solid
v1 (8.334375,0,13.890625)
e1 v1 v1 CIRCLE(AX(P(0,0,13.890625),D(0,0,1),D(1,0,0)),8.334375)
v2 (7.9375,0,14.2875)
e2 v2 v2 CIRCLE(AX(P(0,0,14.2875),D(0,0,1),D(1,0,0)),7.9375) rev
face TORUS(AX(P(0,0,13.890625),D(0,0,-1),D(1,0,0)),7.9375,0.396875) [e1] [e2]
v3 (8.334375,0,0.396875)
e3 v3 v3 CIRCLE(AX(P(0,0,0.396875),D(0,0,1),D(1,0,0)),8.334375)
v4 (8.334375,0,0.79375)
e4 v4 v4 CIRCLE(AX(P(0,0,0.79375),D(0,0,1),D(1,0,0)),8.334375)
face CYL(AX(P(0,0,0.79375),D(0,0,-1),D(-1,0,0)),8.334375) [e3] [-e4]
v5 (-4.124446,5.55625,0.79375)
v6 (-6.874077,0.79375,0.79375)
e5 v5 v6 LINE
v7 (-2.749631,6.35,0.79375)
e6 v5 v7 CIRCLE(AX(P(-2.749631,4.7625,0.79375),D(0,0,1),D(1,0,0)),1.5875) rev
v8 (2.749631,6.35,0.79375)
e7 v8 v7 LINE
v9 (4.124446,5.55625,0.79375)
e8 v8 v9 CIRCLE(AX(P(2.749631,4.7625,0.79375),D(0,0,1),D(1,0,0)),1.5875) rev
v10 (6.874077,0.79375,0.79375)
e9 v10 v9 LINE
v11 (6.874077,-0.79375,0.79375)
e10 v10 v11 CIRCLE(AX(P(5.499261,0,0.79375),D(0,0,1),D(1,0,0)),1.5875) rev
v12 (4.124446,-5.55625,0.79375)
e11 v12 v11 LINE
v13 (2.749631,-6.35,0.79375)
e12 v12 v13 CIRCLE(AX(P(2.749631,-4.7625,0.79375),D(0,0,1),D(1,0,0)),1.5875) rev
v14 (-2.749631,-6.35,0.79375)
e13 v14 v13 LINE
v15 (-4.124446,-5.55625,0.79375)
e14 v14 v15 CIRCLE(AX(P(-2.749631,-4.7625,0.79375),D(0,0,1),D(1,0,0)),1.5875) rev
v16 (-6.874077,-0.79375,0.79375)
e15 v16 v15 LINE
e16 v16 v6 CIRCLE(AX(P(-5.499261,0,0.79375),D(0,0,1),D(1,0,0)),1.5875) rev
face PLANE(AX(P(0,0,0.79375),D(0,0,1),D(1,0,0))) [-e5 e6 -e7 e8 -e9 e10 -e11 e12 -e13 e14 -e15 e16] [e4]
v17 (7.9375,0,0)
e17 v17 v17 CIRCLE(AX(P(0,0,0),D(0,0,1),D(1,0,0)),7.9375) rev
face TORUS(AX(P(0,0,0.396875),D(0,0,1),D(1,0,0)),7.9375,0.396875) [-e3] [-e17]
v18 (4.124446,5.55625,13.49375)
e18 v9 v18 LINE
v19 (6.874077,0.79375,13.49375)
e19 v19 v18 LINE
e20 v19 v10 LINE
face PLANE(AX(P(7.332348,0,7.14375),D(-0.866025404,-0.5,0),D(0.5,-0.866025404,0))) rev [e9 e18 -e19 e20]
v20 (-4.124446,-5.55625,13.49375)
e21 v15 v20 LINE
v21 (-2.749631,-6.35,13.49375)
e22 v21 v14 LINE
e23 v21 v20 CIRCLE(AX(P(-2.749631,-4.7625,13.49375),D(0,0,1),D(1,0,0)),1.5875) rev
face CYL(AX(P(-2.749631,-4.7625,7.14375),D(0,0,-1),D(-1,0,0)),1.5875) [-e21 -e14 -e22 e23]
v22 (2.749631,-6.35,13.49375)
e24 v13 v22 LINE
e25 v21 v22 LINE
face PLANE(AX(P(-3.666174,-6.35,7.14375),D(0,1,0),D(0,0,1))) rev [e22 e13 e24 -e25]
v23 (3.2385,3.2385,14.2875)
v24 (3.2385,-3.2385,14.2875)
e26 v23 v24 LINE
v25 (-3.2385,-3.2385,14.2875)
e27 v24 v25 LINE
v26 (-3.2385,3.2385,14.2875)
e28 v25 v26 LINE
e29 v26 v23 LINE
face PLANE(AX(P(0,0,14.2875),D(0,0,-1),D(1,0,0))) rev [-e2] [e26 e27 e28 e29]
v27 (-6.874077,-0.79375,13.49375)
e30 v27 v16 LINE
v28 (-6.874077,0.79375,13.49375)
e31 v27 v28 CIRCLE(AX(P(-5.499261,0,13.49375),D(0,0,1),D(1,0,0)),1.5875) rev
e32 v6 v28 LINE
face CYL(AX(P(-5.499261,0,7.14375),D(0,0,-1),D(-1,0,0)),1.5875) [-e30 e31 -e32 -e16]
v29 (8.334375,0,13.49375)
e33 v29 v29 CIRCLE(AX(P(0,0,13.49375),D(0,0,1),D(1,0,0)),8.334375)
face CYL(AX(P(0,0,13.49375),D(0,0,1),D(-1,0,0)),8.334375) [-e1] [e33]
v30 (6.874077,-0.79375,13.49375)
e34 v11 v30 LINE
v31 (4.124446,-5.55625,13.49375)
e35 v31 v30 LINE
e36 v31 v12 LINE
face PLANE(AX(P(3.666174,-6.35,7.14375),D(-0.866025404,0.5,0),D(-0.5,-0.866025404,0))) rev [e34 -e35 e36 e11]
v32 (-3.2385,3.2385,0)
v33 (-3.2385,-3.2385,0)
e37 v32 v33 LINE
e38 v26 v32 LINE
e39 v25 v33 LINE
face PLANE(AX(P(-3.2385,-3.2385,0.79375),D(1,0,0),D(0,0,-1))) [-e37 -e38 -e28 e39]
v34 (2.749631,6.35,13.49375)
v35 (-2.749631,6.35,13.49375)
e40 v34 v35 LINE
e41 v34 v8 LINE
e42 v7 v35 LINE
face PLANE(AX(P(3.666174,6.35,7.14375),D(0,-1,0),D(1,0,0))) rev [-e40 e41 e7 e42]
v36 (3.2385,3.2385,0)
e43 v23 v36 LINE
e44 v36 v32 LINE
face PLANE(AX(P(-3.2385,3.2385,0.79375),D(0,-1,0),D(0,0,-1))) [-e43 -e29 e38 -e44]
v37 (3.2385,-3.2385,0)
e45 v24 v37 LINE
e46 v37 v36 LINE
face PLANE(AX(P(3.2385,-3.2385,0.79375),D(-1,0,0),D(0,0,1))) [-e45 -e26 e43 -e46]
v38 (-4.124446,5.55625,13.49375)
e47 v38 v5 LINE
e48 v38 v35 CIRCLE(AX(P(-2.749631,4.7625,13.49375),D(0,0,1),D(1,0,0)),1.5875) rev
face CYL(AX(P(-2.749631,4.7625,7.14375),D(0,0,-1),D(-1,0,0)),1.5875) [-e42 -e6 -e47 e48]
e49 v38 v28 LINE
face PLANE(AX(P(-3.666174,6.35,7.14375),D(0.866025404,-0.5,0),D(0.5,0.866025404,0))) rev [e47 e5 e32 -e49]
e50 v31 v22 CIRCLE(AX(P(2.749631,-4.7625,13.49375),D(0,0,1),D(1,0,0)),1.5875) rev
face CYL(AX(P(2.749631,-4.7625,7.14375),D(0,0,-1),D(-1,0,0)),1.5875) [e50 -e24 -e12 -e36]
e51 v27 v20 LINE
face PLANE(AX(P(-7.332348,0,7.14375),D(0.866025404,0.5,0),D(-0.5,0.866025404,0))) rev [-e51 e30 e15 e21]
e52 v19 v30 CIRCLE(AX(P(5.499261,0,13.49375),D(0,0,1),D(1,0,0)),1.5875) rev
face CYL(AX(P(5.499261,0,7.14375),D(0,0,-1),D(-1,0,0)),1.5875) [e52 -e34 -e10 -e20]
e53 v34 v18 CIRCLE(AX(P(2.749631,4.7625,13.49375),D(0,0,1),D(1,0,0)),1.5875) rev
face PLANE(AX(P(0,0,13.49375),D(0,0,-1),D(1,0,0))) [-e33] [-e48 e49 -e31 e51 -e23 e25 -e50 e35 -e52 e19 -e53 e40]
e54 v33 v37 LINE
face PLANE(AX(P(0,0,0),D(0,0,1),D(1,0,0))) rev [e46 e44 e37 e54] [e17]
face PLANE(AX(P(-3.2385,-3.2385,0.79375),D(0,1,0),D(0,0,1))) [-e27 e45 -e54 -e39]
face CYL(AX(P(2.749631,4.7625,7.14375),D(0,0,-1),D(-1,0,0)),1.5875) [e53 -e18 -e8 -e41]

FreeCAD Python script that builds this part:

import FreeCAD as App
import Part
import Sketcher

V = App.Vector
Q = App.Units.Quantity


def edges_at(feature, points):
    """Names of the edges that pass closest to the given points."""
    edges = feature.Shape.Edges
    near = lambda p: min(range(len(edges)), key=lambda i: edges[i].distToShape(Part.Vertex(*p))[0])
    return sorted({f"Edge{near(p) + 1}" for p in points})


def add_polygon(sketch, points):
    """Adds a closed chain of lines whose ends are joined by coincident constraints."""
    first, n = sketch.GeometryCount, len(points)
    for a, b in zip(points, points[1:] + points[:1]):
        sketch.addGeometry(Part.LineSegment(App.Vector(*a, 0), App.Vector(*b, 0)), False)
    for i in range(n):
        sketch.addConstraint(Sketcher.Constraint("Coincident", first + i, 2, first + (i + 1) % n, 1))

doc = App.newDocument("Part")
body = doc.addObject("PartDesign::Body", "Body")

# Sketch on XY plane
sketch1 = body.newObject("Sketcher::SketchObject", "Sketch")
sketch1.AttachmentSupport = (doc.getObject("XY_Plane"), [""])
sketch1.MapMode = "FlatFace"
sketch1.addGeometry(Part.Circle(V(0, 0, 0), V(0, 0, 1), 8.334375), False)  # 0
add_polygon(sketch1, [(3.2385, -3.2385), (-3.2385, -3.2385), (-3.2385, 3.2385), (3.2385, 3.2385)])  # lines 1-4
sketch1.addConstraint([
    Sketcher.Constraint("Horizontal", 1),
    Sketcher.Constraint("Vertical", 2),
    Sketcher.Constraint("Horizontal", 3),
    Sketcher.Constraint("Vertical", 4),
    Sketcher.Constraint("Coincident", 0, 3, -1, 1),
    Sketcher.Constraint("Symmetric", 1, 2, 3, 2, -1, 1),
    Sketcher.Constraint("Equal", 3, 2),
    Sketcher.Constraint("Diameter", 0, Q("0.65625 in")),
    Sketcher.Constraint("DistanceX", 1, 2, 1, 1, Q("0.255 in")),
])
pad1 = body.newObject("PartDesign::Pad", "Pad")
pad1.Profile = sketch1
pad1.Length = Q("0.03125 in")

# Sketch on XY plane
sketch2 = body.newObject("Sketcher::SketchObject", "Sketch001")
sketch2.AttachmentSupport = (doc.getObject("XY_Plane"), [""])
sketch2.MapMode = "FlatFace"
sketch2.AttachmentOffset = App.Placement(V(0, 0, 0.03125 * 25.4), App.Rotation())
add_polygon(sketch2, [(7.332348, 0), (3.666174, 6.35), (-3.666174, 6.35), (-7.332348, 0), (-3.666174, -6.35), (3.666174, -6.35)])  # lines 0-5
add_polygon(sketch2, [(3.2385, -3.2385), (-3.2385, -3.2385), (-3.2385, 3.2385), (3.2385, 3.2385)])  # lines 6-9
sketch2.addConstraint([
    Sketcher.Constraint("Horizontal", 1),
    Sketcher.Constraint("Horizontal", 4),
    Sketcher.Constraint("Horizontal", 6),
    Sketcher.Constraint("Vertical", 7),
    Sketcher.Constraint("Horizontal", 8),
    Sketcher.Constraint("Vertical", 9),
    Sketcher.Constraint("Symmetric", 0, 2, 3, 2, -1, 1),
    Sketcher.Constraint("Symmetric", 2, 2, 5, 2, -1, 1),
    Sketcher.Constraint("Symmetric", 6, 2, 8, 2, -1, 1),
    Sketcher.Constraint("PointOnObject", 2, 2, -1),
    Sketcher.Constraint("Parallel", 2, 5),
    Sketcher.Constraint("Vertical", 1, 2, 3, 2),
    Sketcher.Constraint("Equal", 8, 7),
    Sketcher.Constraint("Angle", 0, Q("120 deg")),
    Sketcher.Constraint("DistanceY", 3, 2, 1, 2, Q("0.5 in")),
    Sketcher.Constraint("DistanceX", 6, 2, 6, 1, Q("0.255 in")),
    Sketcher.Constraint("DistanceX", 1, 2, 1, 1, 7.332348),
])
pad2 = body.newObject("PartDesign::Pad", "Pad001")
pad2.Profile = sketch2
pad2.Length = Q("0.25 in")

# Sketch on XY plane
sketch3 = body.newObject("Sketcher::SketchObject", "Sketch002")
sketch3.AttachmentSupport = (doc.getObject("XY_Plane"), [""])
sketch3.MapMode = "FlatFace"
sketch3.addGeometry(Part.Circle(V(0, 0, 0), V(0, 0, 1), 5.1435), False)
sketch3.addConstraint([
    Sketcher.Constraint("Coincident", 0, 3, -1, 1),
    Sketcher.Constraint("Diameter", 0, Q("0.405 in")),
])
pocket1 = body.newObject("PartDesign::Pocket", "Pocket")
pocket1.Profile = sketch3
pocket1.Length = Q("0.05 in")
pocket1.Reversed = True
doc.recompute()

fillet = body.newObject("PartDesign::Fillet", "Fillet")
fillet.Base = (pocket1, edges_at(pocket1, [
    (3.666, -6.35, 3.969),
    (7.332, 0, 3.969),
    (3.666, 6.35, 3.969),
    (-3.666, 6.35, 3.969),
    (-7.332, 0, 3.969),
    (-3.666, -6.35, 3.969),
]))
fillet.Radius = Q("0.0625 in")
doc.recompute()

fillet2 = body.newObject("PartDesign::Fillet", "Fillet001")
fillet2.Base = (fillet, edges_at(fillet, [(-8.334, 0, 0)]))
fillet2.Radius = Q("0.015625 in")
body2 = doc.addObject("PartDesign::Body", "Body001")
doc.recompute()

body2.BaseFeature = body
doc.recompute()

mirroring = doc.addObject("Part::Mirroring", "Mirroring")
mirroring.Source = body
mirroring.Base = V(0, 0, 7.14375)
mirroring.Normal = V(0, 0, 1)
body3 = doc.addObject("PartDesign::Body", "Body002")
body3.BaseFeature = mirroring
boolean = body2.newObject("PartDesign::Boolean", "Boolean")
boolean.Type = "Fuse"
boolean.addObjects([body3])
doc.recompute()

# Sketch on XY plane
sketch4 = body2.newObject("Sketcher::SketchObject", "Sketch003")
sketch4.AttachmentSupport = (doc.getObject("XY_Plane001"), [""])
sketch4.MapMode = "FlatFace"
sketch4.AttachmentOffset = App.Placement(V(0, 0, 0.05 * 25.4), App.Rotation())
sketch4.addGeometry(Part.Circle(V(0, 0, 0), V(0, 0, 1), 5.1435), False)  # 0
add_polygon(sketch4, [(-3.2385, -3.2385), (3.2385, -3.2385), (3.2385, 3.2385), (-3.2385, 3.2385)])  # lines 1-4
sketch4.addConstraint([
    Sketcher.Constraint("Horizontal", 1),
    Sketcher.Constraint("Vertical", 2),
    Sketcher.Constraint("Horizontal", 3),
    Sketcher.Constraint("Vertical", 4),
    Sketcher.Constraint("Coincident", 0, 3, -1, 1),
    Sketcher.Constraint("Symmetric", 1, 2, 3, 2, -1, 1),
    Sketcher.Constraint("Equal", 3, 2),
    Sketcher.Constraint("Diameter", 0, Q("0.405 in")),
    Sketcher.Constraint("DistanceX", 1, 1, 1, 2, Q("0.255 in")),
])
pad3 = body2.newObject("PartDesign::Pad", "Pad002")
pad3.Profile = sketch4
pad3.Length = Q("0.05 in")
pad3.Reversed = True

# Sketch on XY plane
sketch5 = body2.newObject("Sketcher::SketchObject", "Sketch004")
sketch5.AttachmentSupport = (doc.getObject("XY_Plane001"), [""])
sketch5.MapMode = "FlatFace"
sketch5.AttachmentOffset = App.Placement(V(0, 0, 0.5625 * 25.4), App.Rotation())
sketch5.addGeometry(Part.Circle(V(0, 0, 0), V(0, 0, 1), 5.1435), False)  # 0
add_polygon(sketch5, [(3.2385, -3.2385), (-3.2385, -3.2385), (-3.2385, 3.2385), (3.2385, 3.2385)])  # lines 1-4
sketch5.addConstraint([
    Sketcher.Constraint("Horizontal", 1),
    Sketcher.Constraint("Vertical", 2),
    Sketcher.Constraint("Horizontal", 3),
    Sketcher.Constraint("Vertical", 4),
    Sketcher.Constraint("Coincident", 0, 3, -1, 1),
    Sketcher.Constraint("Symmetric", 1, 2, 3, 2, -1, 1),
    Sketcher.Constraint("Equal", 3, 2),
    Sketcher.Constraint("Diameter", 0, Q("0.405 in")),
    Sketcher.Constraint("DistanceX", 1, 2, 1, 1, Q("0.255 in")),
])
pad4 = body2.newObject("PartDesign::Pad", "Pad003")
pad4.Profile = sketch5
pad4.Length = Q("0.05 in")
pad4.Reversed = True
mirroring.Visibility = False

doc.recompute()
